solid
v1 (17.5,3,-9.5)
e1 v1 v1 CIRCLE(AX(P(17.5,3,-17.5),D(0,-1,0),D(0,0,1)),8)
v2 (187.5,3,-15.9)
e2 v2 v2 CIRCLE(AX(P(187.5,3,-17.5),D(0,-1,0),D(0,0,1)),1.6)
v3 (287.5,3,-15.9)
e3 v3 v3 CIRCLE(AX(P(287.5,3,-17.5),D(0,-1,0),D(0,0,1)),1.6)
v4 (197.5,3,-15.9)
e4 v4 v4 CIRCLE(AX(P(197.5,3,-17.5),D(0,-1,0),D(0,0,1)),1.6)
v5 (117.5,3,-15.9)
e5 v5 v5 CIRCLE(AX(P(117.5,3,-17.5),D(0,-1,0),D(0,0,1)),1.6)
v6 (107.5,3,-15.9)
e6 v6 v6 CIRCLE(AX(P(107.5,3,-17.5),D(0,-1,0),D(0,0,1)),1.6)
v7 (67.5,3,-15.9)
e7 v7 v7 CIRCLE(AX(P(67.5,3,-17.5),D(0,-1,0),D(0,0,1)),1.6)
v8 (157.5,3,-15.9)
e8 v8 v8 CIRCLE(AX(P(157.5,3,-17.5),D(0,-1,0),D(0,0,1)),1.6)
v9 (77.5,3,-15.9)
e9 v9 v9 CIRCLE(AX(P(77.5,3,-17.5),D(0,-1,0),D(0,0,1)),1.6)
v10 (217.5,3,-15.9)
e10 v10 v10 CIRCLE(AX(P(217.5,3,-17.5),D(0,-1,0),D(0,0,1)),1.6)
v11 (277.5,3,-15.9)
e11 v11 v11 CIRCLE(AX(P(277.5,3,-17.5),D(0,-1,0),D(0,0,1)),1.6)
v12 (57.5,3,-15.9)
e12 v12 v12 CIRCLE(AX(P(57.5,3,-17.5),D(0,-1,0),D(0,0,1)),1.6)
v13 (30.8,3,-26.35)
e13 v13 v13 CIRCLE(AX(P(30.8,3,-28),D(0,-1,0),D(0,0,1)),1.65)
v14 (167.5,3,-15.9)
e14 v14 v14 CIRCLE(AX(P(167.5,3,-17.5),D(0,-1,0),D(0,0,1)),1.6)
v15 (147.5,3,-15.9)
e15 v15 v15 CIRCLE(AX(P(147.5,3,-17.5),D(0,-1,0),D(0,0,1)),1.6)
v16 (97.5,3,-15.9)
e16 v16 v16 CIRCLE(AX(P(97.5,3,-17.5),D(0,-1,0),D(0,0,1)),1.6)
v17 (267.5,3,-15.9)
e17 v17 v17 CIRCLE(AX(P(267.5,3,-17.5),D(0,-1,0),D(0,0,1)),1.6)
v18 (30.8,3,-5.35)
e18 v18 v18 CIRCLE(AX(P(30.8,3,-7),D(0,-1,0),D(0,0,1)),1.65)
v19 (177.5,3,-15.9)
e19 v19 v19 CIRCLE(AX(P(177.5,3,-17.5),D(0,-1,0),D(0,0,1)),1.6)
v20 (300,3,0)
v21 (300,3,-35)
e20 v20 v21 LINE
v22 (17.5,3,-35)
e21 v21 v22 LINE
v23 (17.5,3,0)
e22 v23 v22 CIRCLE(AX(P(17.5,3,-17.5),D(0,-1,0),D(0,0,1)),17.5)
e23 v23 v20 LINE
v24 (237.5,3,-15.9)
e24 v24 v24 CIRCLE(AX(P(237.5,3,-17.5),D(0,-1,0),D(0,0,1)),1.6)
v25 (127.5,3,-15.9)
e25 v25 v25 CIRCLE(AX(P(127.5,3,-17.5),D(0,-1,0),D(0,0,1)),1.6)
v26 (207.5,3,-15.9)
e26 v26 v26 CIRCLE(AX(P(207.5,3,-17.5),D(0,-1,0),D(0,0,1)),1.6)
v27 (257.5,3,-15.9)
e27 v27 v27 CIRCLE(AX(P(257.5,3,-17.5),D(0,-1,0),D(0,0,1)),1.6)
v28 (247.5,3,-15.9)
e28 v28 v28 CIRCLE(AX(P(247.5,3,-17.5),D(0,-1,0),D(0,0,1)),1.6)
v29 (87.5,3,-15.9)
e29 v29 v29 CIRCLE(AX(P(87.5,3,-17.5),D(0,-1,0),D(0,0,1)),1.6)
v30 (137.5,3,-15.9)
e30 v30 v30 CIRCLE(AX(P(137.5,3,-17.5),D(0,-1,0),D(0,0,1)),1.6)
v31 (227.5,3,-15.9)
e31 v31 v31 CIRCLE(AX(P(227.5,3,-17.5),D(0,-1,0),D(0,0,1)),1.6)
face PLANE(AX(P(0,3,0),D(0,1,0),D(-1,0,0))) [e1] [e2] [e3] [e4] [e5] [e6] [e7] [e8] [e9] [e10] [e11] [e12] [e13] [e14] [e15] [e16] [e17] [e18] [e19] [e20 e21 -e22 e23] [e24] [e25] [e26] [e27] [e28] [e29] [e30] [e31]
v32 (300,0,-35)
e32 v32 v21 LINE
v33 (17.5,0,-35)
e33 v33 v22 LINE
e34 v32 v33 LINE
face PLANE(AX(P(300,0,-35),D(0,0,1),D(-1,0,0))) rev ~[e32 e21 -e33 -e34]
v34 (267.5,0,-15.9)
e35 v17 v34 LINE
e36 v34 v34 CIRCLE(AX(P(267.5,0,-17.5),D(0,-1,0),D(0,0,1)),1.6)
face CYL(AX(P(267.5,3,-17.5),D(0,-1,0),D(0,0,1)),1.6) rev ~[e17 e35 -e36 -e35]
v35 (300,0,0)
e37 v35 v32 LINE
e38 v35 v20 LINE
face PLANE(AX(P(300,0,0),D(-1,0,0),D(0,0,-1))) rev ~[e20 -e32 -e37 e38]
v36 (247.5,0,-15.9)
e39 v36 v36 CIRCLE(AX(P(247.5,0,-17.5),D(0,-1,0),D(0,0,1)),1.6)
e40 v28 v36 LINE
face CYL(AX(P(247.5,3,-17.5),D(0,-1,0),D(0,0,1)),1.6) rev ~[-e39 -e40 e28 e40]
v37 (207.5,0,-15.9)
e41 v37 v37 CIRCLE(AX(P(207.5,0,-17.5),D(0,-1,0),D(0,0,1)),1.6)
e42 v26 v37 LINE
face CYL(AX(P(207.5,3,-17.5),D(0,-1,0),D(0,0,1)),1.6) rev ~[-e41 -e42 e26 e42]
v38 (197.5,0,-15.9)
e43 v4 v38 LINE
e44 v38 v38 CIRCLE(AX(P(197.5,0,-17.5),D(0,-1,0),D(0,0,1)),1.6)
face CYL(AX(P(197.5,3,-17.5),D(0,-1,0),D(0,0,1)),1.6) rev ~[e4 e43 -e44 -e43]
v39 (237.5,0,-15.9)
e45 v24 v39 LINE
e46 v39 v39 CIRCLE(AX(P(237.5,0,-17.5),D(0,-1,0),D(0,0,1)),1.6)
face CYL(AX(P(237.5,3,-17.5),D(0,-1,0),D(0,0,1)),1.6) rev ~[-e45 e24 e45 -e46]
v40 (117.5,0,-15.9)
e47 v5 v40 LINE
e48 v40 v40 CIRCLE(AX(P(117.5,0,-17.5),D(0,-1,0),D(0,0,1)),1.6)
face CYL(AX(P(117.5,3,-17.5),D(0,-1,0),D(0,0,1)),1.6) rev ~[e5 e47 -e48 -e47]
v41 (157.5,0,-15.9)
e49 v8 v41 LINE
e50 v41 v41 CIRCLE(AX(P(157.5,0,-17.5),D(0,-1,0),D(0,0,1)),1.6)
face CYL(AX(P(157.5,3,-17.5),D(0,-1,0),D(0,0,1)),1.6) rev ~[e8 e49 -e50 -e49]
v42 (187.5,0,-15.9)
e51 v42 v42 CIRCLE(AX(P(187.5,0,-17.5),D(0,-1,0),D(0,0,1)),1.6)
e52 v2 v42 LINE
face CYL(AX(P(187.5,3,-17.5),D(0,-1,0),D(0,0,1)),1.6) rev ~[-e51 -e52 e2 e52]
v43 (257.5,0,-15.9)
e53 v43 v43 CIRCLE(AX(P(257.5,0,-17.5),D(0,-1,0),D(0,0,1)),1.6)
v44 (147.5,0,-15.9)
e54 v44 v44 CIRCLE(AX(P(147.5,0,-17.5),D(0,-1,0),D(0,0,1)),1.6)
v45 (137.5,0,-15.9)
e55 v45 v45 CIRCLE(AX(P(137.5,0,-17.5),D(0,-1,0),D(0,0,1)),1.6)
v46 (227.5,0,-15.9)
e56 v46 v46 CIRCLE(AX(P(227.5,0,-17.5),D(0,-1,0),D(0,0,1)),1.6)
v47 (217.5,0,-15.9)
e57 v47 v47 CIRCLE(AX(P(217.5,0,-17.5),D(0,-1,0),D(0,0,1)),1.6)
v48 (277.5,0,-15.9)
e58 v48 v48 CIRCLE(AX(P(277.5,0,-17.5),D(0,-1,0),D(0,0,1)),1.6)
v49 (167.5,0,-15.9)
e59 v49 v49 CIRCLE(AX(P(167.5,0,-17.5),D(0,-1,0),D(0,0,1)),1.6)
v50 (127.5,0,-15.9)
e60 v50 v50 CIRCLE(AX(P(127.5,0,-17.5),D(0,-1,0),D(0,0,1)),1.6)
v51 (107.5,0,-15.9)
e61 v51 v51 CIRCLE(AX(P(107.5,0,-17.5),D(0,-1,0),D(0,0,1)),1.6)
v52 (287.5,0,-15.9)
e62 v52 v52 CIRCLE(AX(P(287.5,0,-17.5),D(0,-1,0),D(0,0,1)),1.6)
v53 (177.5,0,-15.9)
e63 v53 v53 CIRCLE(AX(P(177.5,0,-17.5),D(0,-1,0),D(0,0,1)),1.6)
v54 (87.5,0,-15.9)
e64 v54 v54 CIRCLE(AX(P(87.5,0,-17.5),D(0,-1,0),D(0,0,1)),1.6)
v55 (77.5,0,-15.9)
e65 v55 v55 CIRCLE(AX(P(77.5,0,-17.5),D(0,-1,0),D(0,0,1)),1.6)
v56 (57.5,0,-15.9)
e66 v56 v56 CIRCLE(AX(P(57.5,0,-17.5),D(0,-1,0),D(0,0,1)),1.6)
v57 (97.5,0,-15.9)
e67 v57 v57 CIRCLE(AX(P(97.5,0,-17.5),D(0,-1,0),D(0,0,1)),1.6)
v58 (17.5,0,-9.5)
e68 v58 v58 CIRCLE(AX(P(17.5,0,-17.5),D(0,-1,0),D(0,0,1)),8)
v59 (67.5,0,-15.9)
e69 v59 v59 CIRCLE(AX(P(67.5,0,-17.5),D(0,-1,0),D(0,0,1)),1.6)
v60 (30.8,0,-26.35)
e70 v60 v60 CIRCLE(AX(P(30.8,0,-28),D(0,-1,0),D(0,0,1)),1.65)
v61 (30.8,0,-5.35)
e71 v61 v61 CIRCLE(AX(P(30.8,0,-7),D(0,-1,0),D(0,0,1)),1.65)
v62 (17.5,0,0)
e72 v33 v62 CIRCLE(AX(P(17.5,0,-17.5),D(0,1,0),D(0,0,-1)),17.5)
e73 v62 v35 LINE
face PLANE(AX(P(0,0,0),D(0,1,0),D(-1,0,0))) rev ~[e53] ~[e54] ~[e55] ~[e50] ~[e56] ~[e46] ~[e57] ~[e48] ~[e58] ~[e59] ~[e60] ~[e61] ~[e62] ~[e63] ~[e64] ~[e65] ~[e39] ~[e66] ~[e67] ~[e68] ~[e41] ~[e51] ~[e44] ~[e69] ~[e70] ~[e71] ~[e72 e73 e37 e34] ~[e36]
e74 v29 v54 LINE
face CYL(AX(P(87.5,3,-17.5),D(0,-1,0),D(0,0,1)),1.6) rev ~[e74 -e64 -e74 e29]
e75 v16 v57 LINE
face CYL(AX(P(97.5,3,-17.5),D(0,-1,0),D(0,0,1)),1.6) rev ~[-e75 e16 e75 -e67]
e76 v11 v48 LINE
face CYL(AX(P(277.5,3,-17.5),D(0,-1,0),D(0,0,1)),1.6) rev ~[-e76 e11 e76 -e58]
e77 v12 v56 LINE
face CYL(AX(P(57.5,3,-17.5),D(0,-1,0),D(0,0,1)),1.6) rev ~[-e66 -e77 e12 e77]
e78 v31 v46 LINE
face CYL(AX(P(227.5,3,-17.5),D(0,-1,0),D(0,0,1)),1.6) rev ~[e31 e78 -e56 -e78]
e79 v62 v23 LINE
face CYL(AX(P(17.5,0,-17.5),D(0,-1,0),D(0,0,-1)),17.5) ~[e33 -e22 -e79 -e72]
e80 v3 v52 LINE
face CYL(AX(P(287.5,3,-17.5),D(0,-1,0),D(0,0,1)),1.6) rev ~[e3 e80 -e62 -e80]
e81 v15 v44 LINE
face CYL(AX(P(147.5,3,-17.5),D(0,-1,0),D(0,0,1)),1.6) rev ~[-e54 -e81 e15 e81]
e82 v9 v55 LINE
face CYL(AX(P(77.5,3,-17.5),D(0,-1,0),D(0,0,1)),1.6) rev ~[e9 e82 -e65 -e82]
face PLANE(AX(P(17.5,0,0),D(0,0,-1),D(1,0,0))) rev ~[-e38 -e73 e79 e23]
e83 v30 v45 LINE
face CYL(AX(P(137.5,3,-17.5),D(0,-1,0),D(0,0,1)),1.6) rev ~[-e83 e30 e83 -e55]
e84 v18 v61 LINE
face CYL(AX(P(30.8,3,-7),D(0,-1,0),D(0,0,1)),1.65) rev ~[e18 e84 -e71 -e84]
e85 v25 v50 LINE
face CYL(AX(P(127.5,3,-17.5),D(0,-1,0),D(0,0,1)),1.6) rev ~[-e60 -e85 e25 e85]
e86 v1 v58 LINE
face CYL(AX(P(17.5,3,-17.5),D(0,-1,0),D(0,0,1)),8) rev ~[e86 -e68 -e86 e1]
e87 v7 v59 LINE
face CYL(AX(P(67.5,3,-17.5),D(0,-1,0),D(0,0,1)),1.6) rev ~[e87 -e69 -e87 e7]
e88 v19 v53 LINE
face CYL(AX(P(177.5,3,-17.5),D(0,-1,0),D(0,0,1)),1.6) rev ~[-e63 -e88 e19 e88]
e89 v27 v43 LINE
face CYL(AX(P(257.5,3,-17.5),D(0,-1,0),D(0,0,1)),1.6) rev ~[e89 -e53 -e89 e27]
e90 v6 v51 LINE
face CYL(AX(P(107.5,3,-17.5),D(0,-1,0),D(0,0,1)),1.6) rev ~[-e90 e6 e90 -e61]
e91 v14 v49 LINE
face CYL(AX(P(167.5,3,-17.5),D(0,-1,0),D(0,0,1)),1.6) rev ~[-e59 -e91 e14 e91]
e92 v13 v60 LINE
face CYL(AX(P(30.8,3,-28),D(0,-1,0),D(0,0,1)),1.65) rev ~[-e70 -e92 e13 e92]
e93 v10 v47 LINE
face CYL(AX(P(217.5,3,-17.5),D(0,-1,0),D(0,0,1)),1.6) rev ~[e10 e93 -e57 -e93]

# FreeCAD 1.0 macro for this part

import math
import FreeCAD as App
import Part
import Sketcher
from FreeCAD import Vector

doc = App.newDocument("Part")
body = doc.addObject("PartDesign::Body", "Body")

sketch1 = doc.addObject("Sketcher::SketchObject", "Sketch")
body.addObject(sketch1)
sketch1.AttachmentSupport = (doc.XZ_Plane, [""])
sketch1.MapMode = "FlatFace"
sketch1.addGeometry([
    Part.ArcOfCircle(Part.Circle(Vector(18, -18, 0), Vector(0, 0, 1), 18), math.radians(90), math.radians(270)),
    Part.LineSegment(Vector(18, 0, 0), Vector(300, 0, 0)),
    Part.LineSegment(Vector(300, 0, 0), Vector(300, -35, 0)),
    Part.LineSegment(Vector(300, -35, 0), Vector(18, -35, 0)),
], False)
sketch1.addConstraint([
    Sketcher.Constraint("Tangent", 0, 1, 1, 1),
    Sketcher.Constraint("Coincident", 1, 2, 2, 1),
    Sketcher.Constraint("Coincident", 2, 2, 3, 1),
    Sketcher.Constraint("Tangent", 3, 2, 0, 2),
    Sketcher.Constraint("Horizontal", 1),
    Sketcher.Constraint("Vertical", 2),
    Sketcher.Constraint("Horizontal", 3),
    Sketcher.Constraint("PointOnObject", 0, 1, -1),
    Sketcher.Constraint("Radius", 0, 17.5),
    Sketcher.Constraint("DistanceX", -1, 1, 1, 2, 300.0),
    Sketcher.Constraint("DistanceX", -1, 1, 0, 3, 17.5),
])
pad1 = doc.addObject("PartDesign::Pad", "Pad")
body.addObject(pad1)
pad1.Profile = sketch1
pad1.Length = 3
pad1.Reversed = True

sketch2 = doc.addObject("Sketcher::SketchObject", "Sketch001")
body.addObject(sketch2)
sketch2.AttachmentSupport = (doc.XZ_Plane, [""])
sketch2.MapMode = "FlatFace"
sketch2.AttachmentOffset = App.Placement(Vector(0, 0, -3), App.Rotation())
sketch2.addGeometry(Part.Circle(Vector(18, -18, 0), Vector(0, 0, 1), 8), False)
sketch2.addConstraint([
    Sketcher.Constraint("Diameter", 0, 16.0),
    Sketcher.Constraint("DistanceX", -1, 1, 0, 3, 17.5),
    Sketcher.Constraint("DistanceY", 0, 3, -1, 1, 17.5),
])
doc.recompute()
hole = doc.addObject("PartDesign::Hole", "Hole")
body.addObject(hole)
hole.Profile = sketch2
hole.ThreadType = "None"
hole.Diameter = 16
hole.DepthType = "ThroughAll"
hole.Reversed = True

sketch3 = doc.addObject("Sketcher::SketchObject", "Sketch002")
body.addObject(sketch3)
sketch3.AttachmentSupport = (doc.XZ_Plane, [""])
sketch3.MapMode = "FlatFace"
sketch3.AttachmentOffset = App.Placement(Vector(0, 0, -3), App.Rotation())
sketch3.addGeometry([
    Part.Circle(Vector(30.8, -7, 0), Vector(0, 0, 1), 1.6),
    Part.Circle(Vector(30.8, -28, 0), Vector(0, 0, 1), 1.6),
], False)
sketch3.addConstraint([
    Sketcher.Constraint("Equal", 0, 1),
    Sketcher.Constraint("Vertical", 0, 3, 1, 3),
    Sketcher.Constraint("Diameter", 0, 3.3),
    Sketcher.Constraint("DistanceY", 0, 3, -1, 1, 7.0),
    Sketcher.Constraint("DistanceY", 1, 3, -1, 1, 28.0),
    Sketcher.Constraint("DistanceX", -1, 1, 0, 3, 30.8),
])
doc.recompute()
hole2 = doc.addObject("PartDesign::Hole", "Hole001")
body.addObject(hole2)
hole2.Profile = sketch3
hole2.ThreadType = "None"
hole2.Diameter = 3.3
hole2.DepthType = "ThroughAll"
hole2.Reversed = True

sketch4 = doc.addObject("Sketcher::SketchObject", "Sketch003")
body.addObject(sketch4)
sketch4.AttachmentSupport = (doc.XZ_Plane, [""])
sketch4.MapMode = "FlatFace"
sketch4.AttachmentOffset = App.Placement(Vector(0, 0, -3), App.Rotation())
sketch4.addGeometry([
    Part.Circle(Vector(57.5, -17.5, 0), Vector(0, 0, 1), 1.6),
    Part.Circle(Vector(67.5, -17.5, 0), Vector(0, 0, 1), 1.6),
    Part.Circle(Vector(77.5, -17.5, 0), Vector(0, 0, 1), 1.6),
    Part.Circle(Vector(87.5, -17.5, 0), Vector(0, 0, 1), 1.6),
    Part.Circle(Vector(97.5, -17.5, 0), Vector(0, 0, 1), 1.6),
    Part.Circle(Vector(107.5, -17.5, 0), Vector(0, 0, 1), 1.6),
    Part.Circle(Vector(117.5, -17.5, 0), Vector(0, 0, 1), 1.6),
    Part.Circle(Vector(127.5, -17.5, 0), Vector(0, 0, 1), 1.6),
    Part.Circle(Vector(137.5, -17.5, 0), Vector(0, 0, 1), 1.6),
    Part.Circle(Vector(147.5, -17.5, 0), Vector(0, 0, 1), 1.6),
    Part.Circle(Vector(157.5, -17.5, 0), Vector(0, 0, 1), 1.6),
    Part.Circle(Vector(167.5, -17.5, 0), Vector(0, 0, 1), 1.6),
    Part.Circle(Vector(177.5, -17.5, 0), Vector(0, 0, 1), 1.6),
    Part.Circle(Vector(187.5, -17.5, 0), Vector(0, 0, 1), 1.6),
    Part.Circle(Vector(197.5, -17.5, 0), Vector(0, 0, 1), 1.6),
    Part.Circle(Vector(207.5, -17.5, 0), Vector(0, 0, 1), 1.6),
    Part.Circle(Vector(217.5, -17.5, 0), Vector(0, 0, 1), 1.6),
    Part.Circle(Vector(227.5, -17.5, 0), Vector(0, 0, 1), 1.6),
    Part.Circle(Vector(237.5, -17.5, 0), Vector(0, 0, 1), 1.6),
    Part.Circle(Vector(247.5, -17.5, 0), Vector(0, 0, 1), 1.6),
    Part.Circle(Vector(257.5, -17.5, 0), Vector(0, 0, 1), 1.6),
    Part.Circle(Vector(267.5, -17.5, 0), Vector(0, 0, 1), 1.6),
    Part.Circle(Vector(277.5, -17.5, 0), Vector(0, 0, 1), 1.6),
    Part.Circle(Vector(287.5, -17.5, 0), Vector(0, 0, 1), 1.6),
], False)
sketch4.addConstraint([
    Sketcher.Constraint("Equal", 0, 1),
    Sketcher.Constraint("Equal", 1, 2),
    Sketcher.Constraint("Equal", 2, 3),
    Sketcher.Constraint("Equal", 3, 4),
    Sketcher.Constraint("Equal", 4, 5),
    Sketcher.Constraint("Equal", 5, 6),
    Sketcher.Constraint("Equal", 6, 7),
    Sketcher.Constraint("Equal", 7, 8),
    Sketcher.Constraint("Equal", 8, 9),
    Sketcher.Constraint("Equal", 9, 10),
    Sketcher.Constraint("Equal", 10, 11),
    Sketcher.Constraint("Equal", 11, 12),
    Sketcher.Constraint("Equal", 12, 13),
    Sketcher.Constraint("Equal", 13, 14),
    Sketcher.Constraint("Equal", 14, 15),
    Sketcher.Constraint("Equal", 15, 16),
    Sketcher.Constraint("Equal", 16, 17),
    Sketcher.Constraint("Equal", 17, 18),
    Sketcher.Constraint("Equal", 18, 19),
    Sketcher.Constraint("Equal", 19, 20),
    Sketcher.Constraint("Equal", 20, 21),
    Sketcher.Constraint("Equal", 21, 22),
    Sketcher.Constraint("Equal", 22, 23),
    Sketcher.Constraint("Horizontal", 0, 3, 1, 3),
    Sketcher.Constraint("Horizontal", 1, 3, 2, 3),
    Sketcher.Constraint("Horizontal", 2, 3, 3, 3),
    Sketcher.Constraint("Horizontal", 3, 3, 4, 3),
    Sketcher.Constraint("Horizontal", 4, 3, 5, 3),
    Sketcher.Constraint("Horizontal", 5, 3, 6, 3),
    Sketcher.Constraint("Horizontal", 6, 3, 7, 3),
    Sketcher.Constraint("Horizontal", 7, 3, 8, 3),
    Sketcher.Constraint("Horizontal", 8, 3, 9, 3),
    Sketcher.Constraint("Horizontal", 9, 3, 10, 3),
    Sketcher.Constraint("Horizontal", 10, 3, 11, 3),
    Sketcher.Constraint("Horizontal", 11, 3, 12, 3),
    Sketcher.Constraint("Horizontal", 12, 3, 13, 3),
    Sketcher.Constraint("Horizontal", 13, 3, 14, 3),
    Sketcher.Constraint("Horizontal", 14, 3, 15, 3),
    Sketcher.Constraint("Horizontal", 15, 3, 16, 3),
    Sketcher.Constraint("Horizontal", 16, 3, 17, 3),
    Sketcher.Constraint("Horizontal", 17, 3, 18, 3),
    Sketcher.Constraint("Horizontal", 18, 3, 19, 3),
    Sketcher.Constraint("Horizontal", 19, 3, 20, 3),
    Sketcher.Constraint("Horizontal", 20, 3, 21, 3),
    Sketcher.Constraint("Horizontal", 21, 3, 22, 3),
    Sketcher.Constraint("Horizontal", 22, 3, 23, 3),
    Sketcher.Constraint("Diameter", 0, 3.2),
    Sketcher.Constraint("DistanceX", 0, 3, 1, 3, 10.0),
    Sketcher.Constraint("DistanceX", 1, 3, 2, 3, 10.0),
    Sketcher.Constraint("DistanceX", 2, 3, 3, 3, 10.0),
    Sketcher.Constraint("DistanceX", 3, 3, 4, 3, 10.0),
    Sketcher.Constraint("DistanceX", 4, 3, 5, 3, 10.0),
    Sketcher.Constraint("DistanceX", 5, 3, 6, 3, 10.0),
    Sketcher.Constraint("DistanceX", 6, 3, 7, 3, 10.0),
    Sketcher.Constraint("DistanceX", 7, 3, 8, 3, 10.0),
    Sketcher.Constraint("DistanceX", 8, 3, 9, 3, 10.0),
    Sketcher.Constraint("DistanceX", 9, 3, 10, 3, 10.0),
    Sketcher.Constraint("DistanceX", 10, 3, 11, 3, 10.0),
    Sketcher.Constraint("DistanceX", 11, 3, 12, 3, 10.0),
    Sketcher.Constraint("DistanceX", 12, 3, 13, 3, 10.0),
    Sketcher.Constraint("DistanceX", 13, 3, 14, 3, 10.0),
    Sketcher.Constraint("DistanceX", 14, 3, 15, 3, 10.0),
    Sketcher.Constraint("DistanceX", 15, 3, 16, 3, 10.0),
    Sketcher.Constraint("DistanceX", 16, 3, 17, 3, 10.0),
    Sketcher.Constraint("DistanceX", 17, 3, 18, 3, 10.0),
    Sketcher.Constraint("DistanceX", 18, 3, 19, 3, 10.0),
    Sketcher.Constraint("DistanceX", 19, 3, 20, 3, 10.0),
    Sketcher.Constraint("DistanceX", 20, 3, 21, 3, 10.0),
    Sketcher.Constraint("DistanceX", 21, 3, 22, 3, 10.0),
    Sketcher.Constraint("DistanceX", 22, 3, 23, 3, 10.0),
    Sketcher.Constraint("DistanceX", -1, 1, 0, 3, 57.5),
    Sketcher.Constraint("DistanceY", 0, 3, -1, 1, 17.5),
])
doc.recompute()
hole3 = doc.addObject("PartDesign::Hole", "Hole002")
body.addObject(hole3)
hole3.Profile = sketch4
hole3.ThreadType = "None"
hole3.Diameter = 3.2
hole3.DepthType = "ThroughAll"
hole3.Reversed = True

doc.recompute()
